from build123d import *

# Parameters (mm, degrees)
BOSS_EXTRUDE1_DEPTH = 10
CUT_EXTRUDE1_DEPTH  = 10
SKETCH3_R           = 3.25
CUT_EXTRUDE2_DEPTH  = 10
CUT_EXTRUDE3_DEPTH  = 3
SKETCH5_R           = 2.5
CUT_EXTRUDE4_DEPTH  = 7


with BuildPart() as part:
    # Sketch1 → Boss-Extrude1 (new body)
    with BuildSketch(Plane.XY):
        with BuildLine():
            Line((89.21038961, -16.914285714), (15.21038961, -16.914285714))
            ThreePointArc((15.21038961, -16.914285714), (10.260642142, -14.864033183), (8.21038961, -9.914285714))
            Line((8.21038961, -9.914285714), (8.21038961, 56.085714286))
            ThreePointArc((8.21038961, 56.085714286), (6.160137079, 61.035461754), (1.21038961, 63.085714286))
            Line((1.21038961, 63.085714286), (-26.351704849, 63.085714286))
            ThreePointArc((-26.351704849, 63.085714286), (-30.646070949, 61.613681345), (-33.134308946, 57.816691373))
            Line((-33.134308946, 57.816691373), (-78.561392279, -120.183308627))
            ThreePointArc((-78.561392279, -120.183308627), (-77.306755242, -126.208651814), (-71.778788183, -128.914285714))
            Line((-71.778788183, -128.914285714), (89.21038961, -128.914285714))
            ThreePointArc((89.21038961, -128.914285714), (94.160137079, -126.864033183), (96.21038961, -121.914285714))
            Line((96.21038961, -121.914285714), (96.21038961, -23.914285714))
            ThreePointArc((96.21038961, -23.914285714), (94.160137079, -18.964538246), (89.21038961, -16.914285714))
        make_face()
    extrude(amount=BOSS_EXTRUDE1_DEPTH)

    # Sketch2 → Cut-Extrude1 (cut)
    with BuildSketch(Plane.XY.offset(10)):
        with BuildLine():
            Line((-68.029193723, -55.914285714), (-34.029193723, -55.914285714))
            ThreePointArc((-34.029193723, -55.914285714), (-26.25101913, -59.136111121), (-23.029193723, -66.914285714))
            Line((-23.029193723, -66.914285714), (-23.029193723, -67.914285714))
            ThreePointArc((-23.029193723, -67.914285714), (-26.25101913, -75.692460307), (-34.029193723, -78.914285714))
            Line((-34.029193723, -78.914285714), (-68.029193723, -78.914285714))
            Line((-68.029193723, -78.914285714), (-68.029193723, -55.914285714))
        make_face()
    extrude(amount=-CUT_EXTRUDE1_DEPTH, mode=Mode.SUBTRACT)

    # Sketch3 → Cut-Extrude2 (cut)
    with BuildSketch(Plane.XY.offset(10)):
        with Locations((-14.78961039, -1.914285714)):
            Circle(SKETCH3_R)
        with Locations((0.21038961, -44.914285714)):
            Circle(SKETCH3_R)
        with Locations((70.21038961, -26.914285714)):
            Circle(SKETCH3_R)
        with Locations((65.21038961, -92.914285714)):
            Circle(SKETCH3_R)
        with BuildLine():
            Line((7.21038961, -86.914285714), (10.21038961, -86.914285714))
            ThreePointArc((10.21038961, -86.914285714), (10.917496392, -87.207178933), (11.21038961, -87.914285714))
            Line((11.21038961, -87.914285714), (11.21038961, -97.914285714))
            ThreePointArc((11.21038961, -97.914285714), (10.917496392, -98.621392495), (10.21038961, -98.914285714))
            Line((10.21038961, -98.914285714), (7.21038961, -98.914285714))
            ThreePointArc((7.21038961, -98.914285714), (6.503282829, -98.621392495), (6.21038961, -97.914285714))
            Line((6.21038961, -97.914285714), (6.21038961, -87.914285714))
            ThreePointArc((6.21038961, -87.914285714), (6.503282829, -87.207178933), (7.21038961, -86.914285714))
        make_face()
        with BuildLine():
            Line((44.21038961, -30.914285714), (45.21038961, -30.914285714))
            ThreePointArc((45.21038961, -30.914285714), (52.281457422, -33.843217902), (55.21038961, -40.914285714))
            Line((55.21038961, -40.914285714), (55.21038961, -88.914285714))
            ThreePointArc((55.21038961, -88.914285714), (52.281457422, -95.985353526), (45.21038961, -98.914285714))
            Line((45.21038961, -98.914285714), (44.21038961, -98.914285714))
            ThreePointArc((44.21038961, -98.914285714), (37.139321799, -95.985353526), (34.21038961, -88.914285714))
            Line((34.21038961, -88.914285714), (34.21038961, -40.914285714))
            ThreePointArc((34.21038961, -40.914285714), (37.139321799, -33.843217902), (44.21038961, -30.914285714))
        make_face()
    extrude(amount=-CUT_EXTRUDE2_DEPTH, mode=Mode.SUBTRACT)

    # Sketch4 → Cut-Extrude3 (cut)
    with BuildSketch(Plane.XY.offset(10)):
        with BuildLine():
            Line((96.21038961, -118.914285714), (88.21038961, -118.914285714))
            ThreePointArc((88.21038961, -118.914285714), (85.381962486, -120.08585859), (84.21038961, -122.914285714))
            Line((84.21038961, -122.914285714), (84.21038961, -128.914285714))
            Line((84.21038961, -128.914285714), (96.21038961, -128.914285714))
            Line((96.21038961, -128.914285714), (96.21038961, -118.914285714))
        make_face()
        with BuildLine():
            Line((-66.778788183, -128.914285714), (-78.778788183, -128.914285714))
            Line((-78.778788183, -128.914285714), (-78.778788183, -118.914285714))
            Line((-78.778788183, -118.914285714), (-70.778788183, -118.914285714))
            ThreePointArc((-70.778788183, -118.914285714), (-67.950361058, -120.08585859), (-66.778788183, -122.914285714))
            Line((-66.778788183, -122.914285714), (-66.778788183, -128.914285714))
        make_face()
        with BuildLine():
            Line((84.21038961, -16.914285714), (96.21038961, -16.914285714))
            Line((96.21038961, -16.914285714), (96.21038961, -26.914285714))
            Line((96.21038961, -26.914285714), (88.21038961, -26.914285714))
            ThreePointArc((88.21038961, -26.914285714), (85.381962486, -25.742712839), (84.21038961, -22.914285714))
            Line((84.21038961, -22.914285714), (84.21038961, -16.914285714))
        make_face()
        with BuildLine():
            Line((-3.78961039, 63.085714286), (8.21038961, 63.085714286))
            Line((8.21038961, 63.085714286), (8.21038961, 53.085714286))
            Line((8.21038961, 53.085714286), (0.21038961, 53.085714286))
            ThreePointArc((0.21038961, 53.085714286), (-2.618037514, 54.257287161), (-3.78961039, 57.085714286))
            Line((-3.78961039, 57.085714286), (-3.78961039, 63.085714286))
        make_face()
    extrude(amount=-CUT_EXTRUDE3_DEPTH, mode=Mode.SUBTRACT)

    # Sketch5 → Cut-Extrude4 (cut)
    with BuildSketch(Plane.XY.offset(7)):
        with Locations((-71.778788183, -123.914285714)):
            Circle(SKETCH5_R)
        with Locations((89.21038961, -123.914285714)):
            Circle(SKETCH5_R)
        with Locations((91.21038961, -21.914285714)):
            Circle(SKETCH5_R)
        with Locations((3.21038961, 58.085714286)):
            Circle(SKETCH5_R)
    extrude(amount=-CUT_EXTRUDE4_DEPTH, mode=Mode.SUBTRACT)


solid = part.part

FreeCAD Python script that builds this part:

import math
import FreeCAD as App
import Part
import Sketcher

V = App.Vector
Q = App.Units.Quantity

doc = App.newDocument("Part")
body = doc.addObject("PartDesign::Body", "Body")

sketch1 = body.newObject("Sketcher::SketchObject", "Sketch")
sketch1.AttachmentSupport = (doc.getObject("XY_Plane"), [""])
sketch1.MapMode = "FlatFace"
sketch1.addGeometry([
    Part.LineSegment(V(89.21039, -16.914286, 0), V(15.21039, -16.914286, 0)),
    Part.ArcOfCircle(Part.Circle(V(15.21039, -9.914286, 0), V(0, 0, 1), 7), math.radians(180), math.radians(270)),
    Part.LineSegment(V(8.21039, -9.914286, 0), V(8.21039, 56.085714, 0)),
    Part.ArcOfCircle(Part.Circle(V(1.21039, 56.085714, 0), V(0, 0, 1), 7), math.radians(0), math.radians(90)),
    Part.LineSegment(V(1.21039, 63.085714, 0), V(-26.351705, 63.085714, 0)),
    Part.ArcOfCircle(Part.Circle(V(-26.351705, 56.085714, 0), V(0, 0, 1), 7), math.radians(90), math.radians(165.683241)),
    Part.LineSegment(V(-33.134309, 57.816691, 0), V(-78.561392, -120.183309, 0)),
    Part.ArcOfCircle(Part.Circle(V(-71.778788, -121.914286, 0), V(0, 0, 1), 7), math.radians(165.683241), math.radians(270)),
    Part.LineSegment(V(-71.778788, -128.914286, 0), V(89.21039, -128.914286, 0)),
    Part.ArcOfCircle(Part.Circle(V(89.21039, -121.914286, 0), V(0, 0, 1), 7), math.radians(-90), math.radians(0)),
    Part.LineSegment(V(96.21039, -121.914286, 0), V(96.21039, -23.914286, 0)),
    Part.ArcOfCircle(Part.Circle(V(89.21039, -23.914286, 0), V(0, 0, 1), 7), math.radians(0), math.radians(90)),
], False)
sketch1.addConstraint([
    Sketcher.Constraint("Coincident", 0, 2, 1, 2),
    Sketcher.Constraint("Coincident", 1, 1, 2, 1),
    Sketcher.Constraint("Coincident", 2, 2, 3, 1),
    Sketcher.Constraint("Coincident", 3, 2, 4, 1),
    Sketcher.Constraint("Coincident", 4, 2, 5, 1),
    Sketcher.Constraint("Coincident", 5, 2, 6, 1),
    Sketcher.Constraint("Coincident", 6, 2, 7, 1),
    Sketcher.Constraint("Coincident", 7, 2, 8, 1),
    Sketcher.Constraint("Coincident", 8, 2, 9, 1),
    Sketcher.Constraint("Coincident", 9, 2, 10, 1),
    Sketcher.Constraint("Coincident", 10, 2, 11, 1),
    Sketcher.Constraint("Coincident", 11, 2, 0, 1),
    Sketcher.Constraint("Horizontal", 0),
    Sketcher.Constraint("Vertical", 2),
    Sketcher.Constraint("Horizontal", 4),
    Sketcher.Constraint("Horizontal", 8),
    Sketcher.Constraint("Vertical", 10),
    Sketcher.Constraint("Radius", 1, Q("7 mm")),
    Sketcher.Constraint("Radius", 3, Q("7 mm")),
    Sketcher.Constraint("Radius", 5, Q("7 mm")),
    Sketcher.Constraint("Radius", 7, Q("7 mm")),
    Sketcher.Constraint("Radius", 9, Q("7 mm")),
    Sketcher.Constraint("Radius", 11, Q("7 mm")),
    Sketcher.Constraint("DistanceX", 0, 2, 0, 1, Q("74 mm")),
    Sketcher.Constraint("DistanceY", 2, 1, 2, 2, Q("66 mm")),
    Sketcher.Constraint("DistanceY", 10, 1, 10, 2, Q("98 mm")),
    Sketcher.Constraint("DistanceY", 1, 3, 3, 3, Q("66 mm")),
    Sketcher.Constraint("DistanceY", 7, 3, 1, 3, Q("112 mm")),
    Sketcher.Constraint("DistanceX", 1, 3, 9, 3, Q("74 mm")),
    Sketcher.Constraint("DistanceX", 3, 3, 0, 2, Q("14 mm")),
    Sketcher.Constraint("DistanceY", 0, 2, 1, 1, Q("7 mm")),
    Sketcher.Constraint("DistanceX", 3, 2, 2, 2, Q("7 mm")),
    Sketcher.Constraint("DistanceX", 0, 2, 8, 2, Q("74 mm")),
    Sketcher.Constraint("DistanceY", 8, 2, 9, 2, Q("7 mm")),
    Sketcher.Constraint("DistanceX", 5, 2, 3, 3, Q("34.344699 mm")),
    Sketcher.Constraint("DistanceX", 4, 2, 4, 1, Q("27.562094 mm")),
    Sketcher.Constraint("DistanceX", 8, 1, 8, 2, Q("160.989178 mm")),
    Sketcher.Constraint("DistanceX", -1, 1, 1, 3, Q("15.21039 mm")),
    Sketcher.Constraint("DistanceX", 7, 3, -1, 1, Q("71.778788 mm")),
    Sketcher.Constraint("DistanceY", -1, 1, 5, 2, Q("57.816691 mm")),
    Sketcher.Constraint("DistanceY", 6, 2, -1, 1, Q("120.183309 mm")),
    Sketcher.Constraint("DistanceX", 6, 2, 0, 2, Q("93.771782 mm")),
])
pad1 = body.newObject("PartDesign::Pad", "Pad")
pad1.Profile = sketch1
pad1.Length = 10

sketch2 = body.newObject("Sketcher::SketchObject", "Sketch001")
sketch2.AttachmentSupport = (doc.getObject("XY_Plane"), [""])
sketch2.MapMode = "FlatFace"
sketch2.AttachmentOffset = App.Placement(V(0, 0, 10), App.Rotation())
sketch2.addGeometry([
    Part.LineSegment(V(-34.029194, -55.914286, 0), V(-68.029194, -55.914286, 0)),
    Part.LineSegment(V(-68.029194, -55.914286, 0), V(-68.029194, -78.914286, 0)),
    Part.LineSegment(V(-68.029194, -78.914286, 0), V(-34.029194, -78.914286, 0)),
    Part.ArcOfCircle(Part.Circle(V(-34.029194, -67.914286, 0), V(0, 0, 1), 11), math.radians(-90), math.radians(0)),
    Part.LineSegment(V(-23.029194, -67.914286, 0), V(-23.029194, -66.914286, 0)),
    Part.ArcOfCircle(Part.Circle(V(-34.029194, -66.914286, 0), V(0, 0, 1), 11), math.radians(0), math.radians(90)),
], False)
sketch2.addConstraint([
    Sketcher.Constraint("Coincident", 0, 2, 1, 1),
    Sketcher.Constraint("Coincident", 1, 2, 2, 1),
    Sketcher.Constraint("Tangent", 2, 2, 3, 1),
    Sketcher.Constraint("Tangent", 3, 2, 4, 1),
    Sketcher.Constraint("Tangent", 4, 2, 5, 1),
    Sketcher.Constraint("Tangent", 5, 2, 0, 1),
    Sketcher.Constraint("Horizontal", 0),
    Sketcher.Constraint("Vertical", 1),
    Sketcher.Constraint("Horizontal", 2),
    Sketcher.Constraint("Vertical", 4),
    Sketcher.Constraint("Equal", 3, 5),
    Sketcher.Constraint("Radius", 3, Q("11 mm")),
    Sketcher.Constraint("DistanceX", 0, 2, 0, 1, Q("34 mm")),
    Sketcher.Constraint("DistanceY", 1, 2, 1, 1, Q("23 mm")),
    Sketcher.Constraint("DistanceX", 3, 3, -1, 1, Q("34.029194 mm")),
    Sketcher.Constraint("DistanceY", 3, 3, -1, 1, Q("67.914286 mm")),
])
pocket1 = body.newObject("PartDesign::Pocket", "Pocket")
pocket1.Profile = sketch2
pocket1.Length = 10

sketch3 = body.newObject("Sketcher::SketchObject", "Sketch002")
sketch3.AttachmentSupport = (doc.getObject("XY_Plane"), [""])
sketch3.MapMode = "FlatFace"
sketch3.AttachmentOffset = App.Placement(V(0, 0, 10), App.Rotation())
sketch3.addGeometry([
    Part.Circle(V(-14.78961, -1.914286, 0), V(0, 0, 1), 3.25),
    Part.Circle(V(0.21039, -44.914286, 0), V(0, 0, 1), 3.25),
    Part.Circle(V(70.21039, -26.914286, 0), V(0, 0, 1), 3.25),
    Part.Circle(V(65.21039, -92.914286, 0), V(0, 0, 1), 3.25),
    Part.LineSegment(V(10.21039, -86.914286, 0), V(7.21039, -86.914286, 0)),
    Part.ArcOfCircle(Part.Circle(V(7.21039, -87.914286, 0), V(0, 0, 1), 1), math.radians(90), math.radians(180)),
    Part.LineSegment(V(6.21039, -87.914286, 0), V(6.21039, -97.914286, 0)),
    Part.ArcOfCircle(Part.Circle(V(7.21039, -97.914286, 0), V(0, 0, 1), 1), math.radians(-180), math.radians(-90)),
    Part.LineSegment(V(7.21039, -98.914286, 0), V(10.21039, -98.914286, 0)),
    Part.ArcOfCircle(Part.Circle(V(10.21039, -97.914286, 0), V(0, 0, 1), 1), math.radians(-90), math.radians(0)),
    Part.LineSegment(V(11.21039, -97.914286, 0), V(11.21039, -87.914286, 0)),
    Part.ArcOfCircle(Part.Circle(V(10.21039, -87.914286, 0), V(0, 0, 1), 1), math.radians(0), math.radians(90)),
    Part.LineSegment(V(45.21039, -30.914286, 0), V(44.21039, -30.914286, 0)),
    Part.ArcOfCircle(Part.Circle(V(44.21039, -40.914286, 0), V(0, 0, 1), 10), math.radians(90), math.radians(180)),
    Part.LineSegment(V(34.21039, -40.914286, 0), V(34.21039, -88.914286, 0)),
    Part.ArcOfCircle(Part.Circle(V(44.21039, -88.914286, 0), V(0, 0, 1), 10), math.radians(-180), math.radians(-90)),
    Part.LineSegment(V(44.21039, -98.914286, 0), V(45.21039, -98.914286, 0)),
    Part.ArcOfCircle(Part.Circle(V(45.21039, -88.914286, 0), V(0, 0, 1), 10), math.radians(-90), math.radians(0)),
    Part.LineSegment(V(55.21039, -88.914286, 0), V(55.21039, -40.914286, 0)),
    Part.ArcOfCircle(Part.Circle(V(45.21039, -40.914286, 0), V(0, 0, 1), 10), math.radians(0), math.radians(90)),
], False)
sketch3.addConstraint([
    Sketcher.Constraint("Tangent", 4, 2, 5, 1),
    Sketcher.Constraint("Tangent", 5, 2, 6, 1),
    Sketcher.Constraint("Tangent", 6, 2, 7, 1),
    Sketcher.Constraint("Tangent", 7, 2, 8, 1),
    Sketcher.Constraint("Tangent", 8, 2, 9, 1),
    Sketcher.Constraint("Tangent", 9, 2, 10, 1),
    Sketcher.Constraint("Tangent", 10, 2, 11, 1),
    Sketcher.Constraint("Tangent", 11, 2, 4, 1),
    Sketcher.Constraint("Tangent", 12, 2, 13, 1),
    Sketcher.Constraint("Tangent", 13, 2, 14, 1),
    Sketcher.Constraint("Tangent", 14, 2, 15, 1),
    Sketcher.Constraint("Tangent", 15, 2, 16, 1),
    Sketcher.Constraint("Tangent", 16, 2, 17, 1),
    Sketcher.Constraint("Tangent", 17, 2, 18, 1),
    Sketcher.Constraint("Tangent", 18, 2, 19, 1),
    Sketcher.Constraint("Tangent", 19, 2, 12, 1),
    Sketcher.Constraint("Horizontal", 4),
    Sketcher.Constraint("Vertical", 6),
    Sketcher.Constraint("Horizontal", 8),
    Sketcher.Constraint("Vertical", 10),
    Sketcher.Constraint("Horizontal", 12),
    Sketcher.Constraint("Vertical", 14),
    Sketcher.Constraint("Horizontal", 16),
    Sketcher.Constraint("Vertical", 18),
    Sketcher.Constraint("Equal", 0, 1),
    Sketcher.Constraint("Equal", 1, 2),
    Sketcher.Constraint("Equal", 2, 3),
    Sketcher.Constraint("Equal", 5, 7),
    Sketcher.Constraint("Equal", 7, 9),
    Sketcher.Constraint("Equal", 9, 11),
    Sketcher.Constraint("Equal", 13, 15),
    Sketcher.Constraint("Equal", 15, 17),
    Sketcher.Constraint("Equal", 17, 19),
    Sketcher.Constraint("Horizontal", 8, 2, 15, 2),
    Sketcher.Constraint("Radius", 5, Q("1 mm")),
    Sketcher.Constraint("Radius", 13, Q("10 mm")),
    Sketcher.Constraint("Diameter", 0, Q("6.5 mm")),
    Sketcher.Constraint("DistanceX", 4, 2, 4, 1, Q("3 mm")),
    Sketcher.Constraint("DistanceX", 12, 2, 12, 1, Q("1 mm")),
    Sketcher.Constraint("DistanceY", 6, 2, 6, 1, Q("10 mm")),
    Sketcher.Constraint("DistanceY", 14, 2, 14, 1, Q("48 mm")),
    Sketcher.Constraint("DistanceX", 0, 3, 1, 3, Q("15 mm")),
    Sketcher.Constraint("DistanceY", 1, 3, 0, 3, Q("43 mm")),
    Sketcher.Constraint("DistanceX", 1, 3, 2, 3, Q("70 mm")),
    Sketcher.Constraint("DistanceY", 1, 3, 2, 3, Q("18 mm")),
    Sketcher.Constraint("DistanceX", 3, 3, 2, 3, Q("5 mm")),
    Sketcher.Constraint("DistanceY", 3, 3, 2, 3, Q("66 mm")),
    Sketcher.Constraint("DistanceX", 1, 3, 5, 3, Q("7 mm")),
    Sketcher.Constraint("DistanceY", 5, 3, 1, 3, Q("43 mm")),
    Sketcher.Constraint("DistanceX", 13, 3, 2, 3, Q("26 mm")),
    Sketcher.Constraint("DistanceX", 0, 3, -1, 1, Q("14.78961 mm")),
    Sketcher.Constraint("DistanceY", 0, 3, -1, 1, Q("1.914286 mm")),
])
pocket2 = body.newObject("PartDesign::Pocket", "Pocket001")
pocket2.Profile = sketch3
pocket2.Length = 10

sketch4 = body.newObject("Sketcher::SketchObject", "Sketch003")
sketch4.AttachmentSupport = (doc.getObject("XY_Plane"), [""])
sketch4.MapMode = "FlatFace"
sketch4.AttachmentOffset = App.Placement(V(0, 0, 10), App.Rotation())
sketch4.addGeometry([
    Part.LineSegment(V(96.21039, -118.914286, 0), V(88.21039, -118.914286, 0)),
    Part.ArcOfCircle(Part.Circle(V(88.21039, -122.914286, 0), V(0, 0, 1), 4), math.radians(90), math.radians(180)),
    Part.LineSegment(V(84.21039, -122.914286, 0), V(84.21039, -128.914286, 0)),
    Part.LineSegment(V(84.21039, -128.914286, 0), V(96.21039, -128.914286, 0)),
    Part.LineSegment(V(96.21039, -128.914286, 0), V(96.21039, -118.914286, 0)),
    Part.LineSegment(V(-78.778788, -128.914286, 0), V(-66.778788, -128.914286, 0)),
    Part.LineSegment(V(-66.778788, -128.914286, 0), V(-66.778788, -122.914286, 0)),
    Part.ArcOfCircle(Part.Circle(V(-70.778788, -122.914286, 0), V(0, 0, 1), 4), math.radians(0), math.radians(90)),
    Part.LineSegment(V(-70.778788, -118.914286, 0), V(-78.778788, -118.914286, 0)),
    Part.LineSegment(V(-78.778788, -118.914286, 0), V(-78.778788, -128.914286, 0)),
    Part.LineSegment(V(96.21039, -16.914286, 0), V(84.21039, -16.914286, 0)),
    Part.LineSegment(V(84.21039, -16.914286, 0), V(84.21039, -22.914286, 0)),
    Part.ArcOfCircle(Part.Circle(V(88.21039, -22.914286, 0), V(0, 0, 1), 4), math.radians(-180), math.radians(-90)),
    Part.LineSegment(V(88.21039, -26.914286, 0), V(96.21039, -26.914286, 0)),
    Part.LineSegment(V(96.21039, -26.914286, 0), V(96.21039, -16.914286, 0)),
    Part.LineSegment(V(8.21039, 63.085714, 0), V(-3.78961, 63.085714, 0)),
    Part.LineSegment(V(-3.78961, 63.085714, 0), V(-3.78961, 57.085714, 0)),
    Part.ArcOfCircle(Part.Circle(V(0.21039, 57.085714, 0), V(0, 0, 1), 4), math.radians(-180), math.radians(-90)),
    Part.LineSegment(V(0.21039, 53.085714, 0), V(8.21039, 53.085714, 0)),
    Part.LineSegment(V(8.21039, 53.085714, 0), V(8.21039, 63.085714, 0)),
], False)
sketch4.addConstraint([
    Sketcher.Constraint("Tangent", 0, 2, 1, 1),
    Sketcher.Constraint("Tangent", 1, 2, 2, 1),
    Sketcher.Constraint("Coincident", 2, 2, 3, 1),
    Sketcher.Constraint("Coincident", 3, 2, 4, 1),
    Sketcher.Constraint("Coincident", 4, 2, 0, 1),
    Sketcher.Constraint("Coincident", 5, 2, 6, 1),
    Sketcher.Constraint("Tangent", 6, 2, 7, 1),
    Sketcher.Constraint("Tangent", 7, 2, 8, 1),
    Sketcher.Constraint("Coincident", 8, 2, 9, 1),
    Sketcher.Constraint("Coincident", 9, 2, 5, 1),
    Sketcher.Constraint("Coincident", 10, 2, 11, 1),
    Sketcher.Constraint("Tangent", 11, 2, 12, 1),
    Sketcher.Constraint("Tangent", 12, 2, 13, 1),
    Sketcher.Constraint("Coincident", 13, 2, 14, 1),
    Sketcher.Constraint("Coincident", 14, 2, 10, 1),
    Sketcher.Constraint("Coincident", 15, 2, 16, 1),
    Sketcher.Constraint("Tangent", 16, 2, 17, 1),
    Sketcher.Constraint("Tangent", 17, 2, 18, 1),
    Sketcher.Constraint("Coincident", 18, 2, 19, 1),
    Sketcher.Constraint("Coincident", 19, 2, 15, 1),
    Sketcher.Constraint("Horizontal", 0),
    Sketcher.Constraint("Vertical", 2),
    Sketcher.Constraint("Horizontal", 3),
    Sketcher.Constraint("Vertical", 4),
    Sketcher.Constraint("Horizontal", 5),
    Sketcher.Constraint("Vertical", 6),
    Sketcher.Constraint("Horizontal", 8),
    Sketcher.Constraint("Vertical", 9),
    Sketcher.Constraint("Horizontal", 10),
    Sketcher.Constraint("Vertical", 11),
    Sketcher.Constraint("Horizontal", 13),
    Sketcher.Constraint("Vertical", 14),
    Sketcher.Constraint("Horizontal", 15),
    Sketcher.Constraint("Vertical", 16),
    Sketcher.Constraint("Horizontal", 18),
    Sketcher.Constraint("Vertical", 19),
    Sketcher.Constraint("Equal", 1, 7),
    Sketcher.Constraint("Equal", 7, 12),
    Sketcher.Constraint("Equal", 12, 17),
    Sketcher.Constraint("Horizontal", 1, 3, 7, 3),
    Sketcher.Constraint("Horizontal", 3, 2, 5, 2),
    Sketcher.Constraint("Vertical", 1, 3, 12, 3),
    Sketcher.Constraint("Vertical", 4, 2, 13, 2),
    Sketcher.Constraint("Equal", 3, 5),
    Sketcher.Constraint("Equal", 10, 15),
    Sketcher.Constraint("Equal", 6, 11),
    Sketcher.Constraint("Equal", 11, 16),
    Sketcher.Constraint("Radius", 1, Q("4 mm")),
    Sketcher.Constraint("DistanceX", 0, 2, 0, 1, Q("8 mm")),
    Sketcher.Constraint("DistanceY", 2, 2, 2, 1, Q("6 mm")),
    Sketcher.Constraint("DistanceY", 1, 3, 12, 3, Q("100 mm")),
    Sketcher.Constraint("DistanceX", 17, 3, 12, 3, Q("88 mm")),
    Sketcher.Constraint("DistanceY", 12, 3, 17, 3, Q("80 mm")),
    Sketcher.Constraint("DistanceX", -1, 1, 1, 3, Q("88.21039 mm")),
    Sketcher.Constraint("DistanceX", 7, 3, -1, 1, Q("70.778788 mm")),
    Sketcher.Constraint("DistanceY", 1, 3, -1, 1, Q("122.914286 mm")),
])
pocket3 = body.newObject("PartDesign::Pocket", "Pocket002")
pocket3.Profile = sketch4
pocket3.Length = 3

sketch5 = body.newObject("Sketcher::SketchObject", "Sketch004")
sketch5.AttachmentSupport = (doc.getObject("XY_Plane"), [""])
sketch5.MapMode = "FlatFace"
sketch5.AttachmentOffset = App.Placement(V(0, 0, 7), App.Rotation())
sketch5.addGeometry([
    Part.Circle(V(-71.778788, -123.914286, 0), V(0, 0, 1), 2.5),
    Part.Circle(V(89.21039, -123.914286, 0), V(0, 0, 1), 2.5),
    Part.Circle(V(91.21039, -21.914286, 0), V(0, 0, 1), 2.5),
    Part.Circle(V(3.21039, 58.085714, 0), V(0, 0, 1), 2.5),
], False)
sketch5.addConstraint([
    Sketcher.Constraint("Equal", 0, 1),
    Sketcher.Constraint("Equal", 1, 2),
    Sketcher.Constraint("Equal", 2, 3),
    Sketcher.Constraint("Horizontal", 0, 3, 1, 3),
    Sketcher.Constraint("Diameter", 0, Q("5 mm")),
    Sketcher.Constraint("DistanceX", 1, 3, 2, 3, Q("2 mm")),
    Sketcher.Constraint("DistanceY", 1, 3, 2, 3, Q("102 mm")),
    Sketcher.Constraint("DistanceX", 3, 3, 2, 3, Q("88 mm")),
    Sketcher.Constraint("DistanceY", 2, 3, 3, 3, Q("80 mm")),
    Sketcher.Constraint("DistanceX", 0, 3, -1, 1, Q("71.778788 mm")),
    Sketcher.Constraint("DistanceX", -1, 1, 1, 3, Q("89.21039 mm")),
    Sketcher.Constraint("DistanceY", 0, 3, -1, 1, Q("123.914286 mm")),
])
pocket4 = body.newObject("PartDesign::Pocket", "Pocket003")
pocket4.Profile = sketch5
pocket4.Length = 7

doc.recompute()
